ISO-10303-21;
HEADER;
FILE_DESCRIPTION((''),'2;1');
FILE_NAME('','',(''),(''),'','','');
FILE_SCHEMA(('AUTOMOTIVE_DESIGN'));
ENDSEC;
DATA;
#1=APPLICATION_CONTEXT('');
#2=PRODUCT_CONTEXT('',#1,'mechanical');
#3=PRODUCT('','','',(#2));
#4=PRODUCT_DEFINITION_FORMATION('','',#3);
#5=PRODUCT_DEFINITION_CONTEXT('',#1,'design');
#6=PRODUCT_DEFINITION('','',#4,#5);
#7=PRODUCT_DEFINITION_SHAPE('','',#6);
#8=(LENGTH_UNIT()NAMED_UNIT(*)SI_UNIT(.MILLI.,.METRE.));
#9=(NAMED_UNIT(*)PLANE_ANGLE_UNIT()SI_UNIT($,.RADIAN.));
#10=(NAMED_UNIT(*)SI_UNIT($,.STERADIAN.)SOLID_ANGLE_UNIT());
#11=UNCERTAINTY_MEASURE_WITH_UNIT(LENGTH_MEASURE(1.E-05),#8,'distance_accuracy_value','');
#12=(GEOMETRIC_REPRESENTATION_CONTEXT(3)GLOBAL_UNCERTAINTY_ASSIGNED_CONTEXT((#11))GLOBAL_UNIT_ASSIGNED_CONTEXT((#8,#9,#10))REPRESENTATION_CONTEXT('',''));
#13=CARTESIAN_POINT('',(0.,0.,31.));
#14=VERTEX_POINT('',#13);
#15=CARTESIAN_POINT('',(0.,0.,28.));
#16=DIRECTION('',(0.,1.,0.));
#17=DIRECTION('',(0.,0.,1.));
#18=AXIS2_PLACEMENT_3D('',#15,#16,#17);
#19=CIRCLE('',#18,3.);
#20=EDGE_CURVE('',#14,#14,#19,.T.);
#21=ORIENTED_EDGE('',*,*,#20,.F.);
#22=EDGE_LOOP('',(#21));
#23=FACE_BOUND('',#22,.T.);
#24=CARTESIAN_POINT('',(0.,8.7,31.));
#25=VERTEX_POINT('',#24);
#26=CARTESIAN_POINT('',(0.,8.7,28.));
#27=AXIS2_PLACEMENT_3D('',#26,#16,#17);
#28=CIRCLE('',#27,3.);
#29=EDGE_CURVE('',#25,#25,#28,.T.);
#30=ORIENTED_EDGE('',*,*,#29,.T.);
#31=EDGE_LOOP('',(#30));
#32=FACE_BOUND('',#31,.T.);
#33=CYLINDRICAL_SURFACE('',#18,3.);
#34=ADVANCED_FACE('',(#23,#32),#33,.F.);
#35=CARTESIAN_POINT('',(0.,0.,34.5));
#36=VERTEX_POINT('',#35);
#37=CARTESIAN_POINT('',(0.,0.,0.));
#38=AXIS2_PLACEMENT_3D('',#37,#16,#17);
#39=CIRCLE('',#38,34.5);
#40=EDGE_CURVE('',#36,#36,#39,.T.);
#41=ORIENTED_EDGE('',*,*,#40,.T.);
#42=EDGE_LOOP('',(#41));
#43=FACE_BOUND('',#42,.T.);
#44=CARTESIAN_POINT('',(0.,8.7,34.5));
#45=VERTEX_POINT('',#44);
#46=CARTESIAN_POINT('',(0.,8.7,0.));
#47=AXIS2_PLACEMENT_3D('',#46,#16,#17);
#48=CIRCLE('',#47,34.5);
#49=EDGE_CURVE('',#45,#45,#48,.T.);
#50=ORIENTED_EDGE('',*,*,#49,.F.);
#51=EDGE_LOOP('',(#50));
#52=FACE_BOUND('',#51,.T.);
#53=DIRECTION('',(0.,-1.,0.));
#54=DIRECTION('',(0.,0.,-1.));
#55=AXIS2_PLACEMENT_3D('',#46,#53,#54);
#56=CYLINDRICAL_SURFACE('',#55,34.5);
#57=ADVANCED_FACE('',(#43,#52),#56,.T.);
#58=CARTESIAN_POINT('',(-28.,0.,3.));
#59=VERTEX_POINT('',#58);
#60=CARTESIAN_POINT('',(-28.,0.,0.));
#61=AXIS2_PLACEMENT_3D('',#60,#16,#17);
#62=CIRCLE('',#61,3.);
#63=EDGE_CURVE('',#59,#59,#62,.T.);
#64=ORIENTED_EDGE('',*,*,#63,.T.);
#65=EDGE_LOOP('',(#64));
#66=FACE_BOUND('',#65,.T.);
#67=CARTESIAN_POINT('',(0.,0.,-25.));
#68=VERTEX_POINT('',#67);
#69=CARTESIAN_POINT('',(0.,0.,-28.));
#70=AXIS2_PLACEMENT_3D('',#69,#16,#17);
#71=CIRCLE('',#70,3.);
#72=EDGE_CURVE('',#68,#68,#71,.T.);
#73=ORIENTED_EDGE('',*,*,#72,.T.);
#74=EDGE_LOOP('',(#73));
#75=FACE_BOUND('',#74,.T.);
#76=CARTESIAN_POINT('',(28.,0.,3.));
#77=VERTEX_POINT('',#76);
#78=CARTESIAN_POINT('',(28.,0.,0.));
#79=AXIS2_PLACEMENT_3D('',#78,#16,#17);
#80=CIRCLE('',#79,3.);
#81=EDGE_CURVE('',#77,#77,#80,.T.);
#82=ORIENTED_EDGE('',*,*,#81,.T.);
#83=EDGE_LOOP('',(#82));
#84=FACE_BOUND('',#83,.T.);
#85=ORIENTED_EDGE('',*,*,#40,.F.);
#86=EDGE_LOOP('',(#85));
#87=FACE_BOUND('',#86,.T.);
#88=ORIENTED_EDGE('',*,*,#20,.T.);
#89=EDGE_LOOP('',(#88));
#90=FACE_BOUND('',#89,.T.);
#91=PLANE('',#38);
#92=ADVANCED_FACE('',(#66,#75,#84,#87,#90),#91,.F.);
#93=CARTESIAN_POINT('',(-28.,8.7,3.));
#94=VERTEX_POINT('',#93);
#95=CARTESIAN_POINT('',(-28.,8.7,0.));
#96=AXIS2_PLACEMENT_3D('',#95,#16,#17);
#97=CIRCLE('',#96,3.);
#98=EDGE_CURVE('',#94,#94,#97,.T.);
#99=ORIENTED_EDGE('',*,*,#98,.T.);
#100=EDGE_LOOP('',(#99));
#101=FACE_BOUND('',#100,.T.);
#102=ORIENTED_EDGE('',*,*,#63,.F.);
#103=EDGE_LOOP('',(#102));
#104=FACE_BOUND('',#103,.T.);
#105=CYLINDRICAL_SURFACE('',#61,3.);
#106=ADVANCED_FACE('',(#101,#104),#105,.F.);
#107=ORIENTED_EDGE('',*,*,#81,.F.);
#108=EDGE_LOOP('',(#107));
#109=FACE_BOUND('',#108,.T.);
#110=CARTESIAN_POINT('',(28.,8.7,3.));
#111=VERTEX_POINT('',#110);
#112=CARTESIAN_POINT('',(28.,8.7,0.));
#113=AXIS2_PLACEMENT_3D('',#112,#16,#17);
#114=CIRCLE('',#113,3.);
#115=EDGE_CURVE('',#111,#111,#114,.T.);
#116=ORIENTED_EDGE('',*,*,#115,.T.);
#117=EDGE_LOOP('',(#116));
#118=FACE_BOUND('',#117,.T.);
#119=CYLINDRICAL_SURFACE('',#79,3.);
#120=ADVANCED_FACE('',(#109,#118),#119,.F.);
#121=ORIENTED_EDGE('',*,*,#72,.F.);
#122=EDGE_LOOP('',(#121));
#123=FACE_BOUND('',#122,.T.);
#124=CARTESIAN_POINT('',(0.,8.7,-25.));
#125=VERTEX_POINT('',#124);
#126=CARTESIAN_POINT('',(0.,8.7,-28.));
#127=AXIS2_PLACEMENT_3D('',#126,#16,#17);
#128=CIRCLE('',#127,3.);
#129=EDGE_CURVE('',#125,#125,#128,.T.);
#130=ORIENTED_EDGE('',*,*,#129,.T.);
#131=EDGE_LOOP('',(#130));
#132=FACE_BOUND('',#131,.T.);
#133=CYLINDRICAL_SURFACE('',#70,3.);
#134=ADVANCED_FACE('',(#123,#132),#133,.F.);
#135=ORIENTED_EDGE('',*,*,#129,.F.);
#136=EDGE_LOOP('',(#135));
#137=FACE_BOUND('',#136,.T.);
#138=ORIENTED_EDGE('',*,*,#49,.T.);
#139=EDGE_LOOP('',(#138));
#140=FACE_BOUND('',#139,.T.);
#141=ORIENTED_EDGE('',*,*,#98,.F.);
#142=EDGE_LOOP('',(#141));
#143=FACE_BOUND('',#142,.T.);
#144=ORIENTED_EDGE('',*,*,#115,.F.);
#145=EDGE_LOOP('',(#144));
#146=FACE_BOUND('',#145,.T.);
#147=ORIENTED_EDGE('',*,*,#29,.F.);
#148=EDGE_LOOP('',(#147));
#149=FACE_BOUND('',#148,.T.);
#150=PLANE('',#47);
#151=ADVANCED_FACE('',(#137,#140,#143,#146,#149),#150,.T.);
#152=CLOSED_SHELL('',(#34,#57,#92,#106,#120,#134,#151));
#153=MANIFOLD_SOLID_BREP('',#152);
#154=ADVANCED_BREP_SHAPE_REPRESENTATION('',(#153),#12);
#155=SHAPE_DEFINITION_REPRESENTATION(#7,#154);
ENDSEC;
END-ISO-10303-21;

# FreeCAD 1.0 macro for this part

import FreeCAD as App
import Part
import Sketcher

V = App.Vector

doc = App.newDocument("Part")
body = doc.addObject("PartDesign::Body", "Body")

# Sketch on XZ plane
sketch1 = body.newObject("Sketcher::SketchObject", "Sketch")
sketch1.AttachmentSupport = (doc.getObject("XZ_Plane"), [""])
sketch1.MapMode = "FlatFace"
sketch1.addGeometry(Part.Circle(V(0, 0, 0), V(0, 0, 1), 34.5), False)
sketch1.addConstraint(Sketcher.Constraint("Coincident", 0, 3, -1, 1))
sketch1.addConstraint(Sketcher.Constraint("Diameter", 0, 69.0))
pad1 = body.newObject("PartDesign::Pad", "Pad")
pad1.Profile = sketch1
pad1.Length = 8.7
pad1.Reversed = True

# Sketch on XZ plane
sketch2 = body.newObject("Sketcher::SketchObject", "Sketch001")
sketch2.AttachmentSupport = (doc.getObject("XZ_Plane"), [""])
sketch2.MapMode = "FlatFace"
sketch2.AttachmentOffset = App.Placement(V(0, 0, -8.7), App.Rotation())
sketch2.addGeometry(Part.Circle(V(0, -28, 0), V(0, 0, 1), 3), False)
sketch2.addGeometry(Part.Circle(V(28, 0, 0), V(0, 0, 1), 3), False)
sketch2.addGeometry(Part.Circle(V(0, 28, 0), V(0, 0, 1), 3), False)
sketch2.addGeometry(Part.Circle(V(-28, 0, 0), V(0, 0, 1), 3), False)
sketch2.addConstraint(Sketcher.Constraint("Equal", 0, 1))
sketch2.addConstraint(Sketcher.Constraint("Equal", 1, 2))
sketch2.addConstraint(Sketcher.Constraint("Equal", 2, 3))
sketch2.addConstraint(Sketcher.Constraint("Symmetric", 0, 3, 2, 3, -1, 1))
sketch2.addConstraint(Sketcher.Constraint("Symmetric", 1, 3, 3, 3, -1, 1))
sketch2.addConstraint(Sketcher.Constraint("PointOnObject", 0, 3, -2))
sketch2.addConstraint(Sketcher.Constraint("PointOnObject", 1, 3, -1))
sketch2.addConstraint(Sketcher.Constraint("Diameter", 0, 6.0))
sketch2.addConstraint(Sketcher.Constraint("DistanceY", 0, 3, -1, 1, 28.0))
sketch2.addConstraint(Sketcher.Constraint("DistanceX", -1, 1, 1, 3, 28.0))
pocket1 = body.newObject("PartDesign::Pocket", "Pocket")
pocket1.Profile = sketch2
pocket1.Length = 8.7
pocket1.Reversed = True

doc.recompute()
